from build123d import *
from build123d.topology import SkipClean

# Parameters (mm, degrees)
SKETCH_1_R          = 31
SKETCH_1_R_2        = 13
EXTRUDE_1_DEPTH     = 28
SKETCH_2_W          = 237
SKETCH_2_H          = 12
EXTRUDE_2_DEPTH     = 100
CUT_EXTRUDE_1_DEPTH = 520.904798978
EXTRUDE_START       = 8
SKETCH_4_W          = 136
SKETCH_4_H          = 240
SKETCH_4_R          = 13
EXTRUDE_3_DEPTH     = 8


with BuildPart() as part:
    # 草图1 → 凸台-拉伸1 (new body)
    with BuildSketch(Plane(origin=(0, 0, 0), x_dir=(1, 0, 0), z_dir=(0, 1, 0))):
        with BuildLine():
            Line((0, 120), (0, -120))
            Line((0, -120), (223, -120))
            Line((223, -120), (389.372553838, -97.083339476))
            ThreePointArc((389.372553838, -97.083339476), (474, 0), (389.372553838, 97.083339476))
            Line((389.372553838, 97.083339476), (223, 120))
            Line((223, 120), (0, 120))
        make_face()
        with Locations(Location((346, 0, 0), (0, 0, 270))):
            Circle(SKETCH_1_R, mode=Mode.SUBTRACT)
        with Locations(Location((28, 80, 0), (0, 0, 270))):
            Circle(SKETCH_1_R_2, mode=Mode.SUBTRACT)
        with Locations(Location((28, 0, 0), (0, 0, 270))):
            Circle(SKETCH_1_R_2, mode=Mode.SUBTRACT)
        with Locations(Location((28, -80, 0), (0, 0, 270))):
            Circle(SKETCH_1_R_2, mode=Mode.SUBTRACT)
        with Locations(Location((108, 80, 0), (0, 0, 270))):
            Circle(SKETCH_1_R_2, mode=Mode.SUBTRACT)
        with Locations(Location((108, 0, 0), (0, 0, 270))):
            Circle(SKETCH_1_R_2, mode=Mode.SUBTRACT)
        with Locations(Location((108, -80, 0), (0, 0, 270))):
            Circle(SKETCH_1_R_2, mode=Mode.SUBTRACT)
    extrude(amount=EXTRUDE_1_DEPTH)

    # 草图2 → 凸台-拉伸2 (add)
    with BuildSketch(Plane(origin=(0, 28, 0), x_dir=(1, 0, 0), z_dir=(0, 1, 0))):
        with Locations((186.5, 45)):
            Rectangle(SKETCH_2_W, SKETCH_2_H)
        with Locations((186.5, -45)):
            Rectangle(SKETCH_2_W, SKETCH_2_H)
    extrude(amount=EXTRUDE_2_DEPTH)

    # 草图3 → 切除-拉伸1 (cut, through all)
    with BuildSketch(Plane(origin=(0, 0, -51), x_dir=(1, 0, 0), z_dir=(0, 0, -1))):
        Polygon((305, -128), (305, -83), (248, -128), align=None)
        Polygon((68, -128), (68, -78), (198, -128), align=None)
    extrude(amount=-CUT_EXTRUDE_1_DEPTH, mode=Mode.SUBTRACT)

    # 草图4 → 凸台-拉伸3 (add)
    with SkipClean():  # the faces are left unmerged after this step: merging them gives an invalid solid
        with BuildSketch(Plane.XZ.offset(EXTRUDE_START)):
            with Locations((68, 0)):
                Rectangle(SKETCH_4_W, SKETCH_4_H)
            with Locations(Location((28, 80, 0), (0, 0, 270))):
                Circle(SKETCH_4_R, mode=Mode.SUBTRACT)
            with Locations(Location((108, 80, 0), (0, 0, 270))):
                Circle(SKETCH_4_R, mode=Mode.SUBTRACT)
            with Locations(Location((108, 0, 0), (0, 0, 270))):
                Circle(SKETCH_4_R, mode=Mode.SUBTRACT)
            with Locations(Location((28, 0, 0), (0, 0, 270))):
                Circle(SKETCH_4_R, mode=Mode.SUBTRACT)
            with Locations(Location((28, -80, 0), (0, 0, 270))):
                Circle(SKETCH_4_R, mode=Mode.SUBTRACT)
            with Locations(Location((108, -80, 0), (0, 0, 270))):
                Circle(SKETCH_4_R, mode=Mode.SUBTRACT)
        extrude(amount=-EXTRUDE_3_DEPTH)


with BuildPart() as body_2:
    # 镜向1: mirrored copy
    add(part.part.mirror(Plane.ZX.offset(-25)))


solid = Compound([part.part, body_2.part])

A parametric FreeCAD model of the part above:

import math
import FreeCAD as App
import Part
import Sketcher
from FreeCAD import Vector
Q = App.Units.Quantity

doc = App.newDocument("Part")
params = doc.addObject("Spreadsheet::Sheet", "Params")
for row, (alias, value) in enumerate([
    ("sketch1_diameter", "26 mm"),
    ("sketch1_diameter2", "62 mm"),
    ("sketch1_radius", "98 mm"),
    ("sketch1_width", "223 mm"),
    ("sketch1_height", "240 mm"),
    ("pad1_length", "28 mm"),
    ("sketch2_width", "237 mm"),
    ("sketch2_height", "12 mm"),
    ("pad2_length", "100 mm"),
    ("sketch3_width", "57 mm"),
    ("sketch3_width2", "130 mm"),
    ("sketch3_height", "45 mm"),
    ("sketch3_height2", "50 mm"),
    ("sketch4_diameter", "26 mm"),
    ("sketch4_width", "136 mm"),
    ("sketch4_height", "240 mm"),
    ("pad3_length", "8 mm"),
], start=1):
    params.set(f"A{row}", alias)
    params.set(f"B{row}", "=" + value)
    params.setAlias(f"B{row}", alias)

body = doc.addObject("PartDesign::Body", "Body")

sketch1 = body.newObject("Sketcher::SketchObject", "Sketch")
sketch1.AttachmentSupport = (doc.getObject("XZ_Plane"), [""])
sketch1.MapMode = "FlatFace"
sketch1.addGeometry([
    Part.LineSegment(Vector(0, -120, 0), Vector(0, 120, 0)),
    Part.LineSegment(Vector(0, 120, 0), Vector(223, 120, 0)),
    Part.LineSegment(Vector(223, 120, 0), Vector(389, 97, 0)),
    Part.ArcOfCircle(Part.Circle(Vector(376, 0, 0), Vector(0, 0, 1), 98), math.radians(-82), math.radians(82)),
    Part.LineSegment(Vector(389, -97, 0), Vector(223, -120, 0)),
    Part.LineSegment(Vector(223, -120, 0), Vector(0, -120, 0)),
    Part.Circle(Vector(28, 80, 0), Vector(0, 0, 1), 13),
    Part.Circle(Vector(108, 80, 0), Vector(0, 0, 1), 13),
    Part.Circle(Vector(28, 0, 0), Vector(0, 0, 1), 13),
    Part.Circle(Vector(108, 0, 0), Vector(0, 0, 1), 13),
    Part.Circle(Vector(28, -80, 0), Vector(0, 0, 1), 13),
    Part.Circle(Vector(108, -80, 0), Vector(0, 0, 1), 13),
    Part.Circle(Vector(346, 0, 0), Vector(0, 0, 1), 31),
], False)
sketch1.addConstraint([
    Sketcher.Constraint("Coincident", 0, 2, 1, 1),
    Sketcher.Constraint("Coincident", 1, 2, 2, 1),
    Sketcher.Constraint("Tangent", 2, 2, 3, 2),
    Sketcher.Constraint("Tangent", 3, 1, 4, 1),
    Sketcher.Constraint("Coincident", 4, 2, 5, 1),
    Sketcher.Constraint("Coincident", 5, 2, 0, 1),
    Sketcher.Constraint("Vertical", 0),
    Sketcher.Constraint("Horizontal", 1),
    Sketcher.Constraint("Horizontal", 5),
    Sketcher.Constraint("Equal", 6, 7),
    Sketcher.Constraint("Equal", 7, 8),
    Sketcher.Constraint("Equal", 8, 9),
    Sketcher.Constraint("Equal", 9, 10),
    Sketcher.Constraint("Equal", 10, 11),
    Sketcher.Constraint("Symmetric", 0, 2, 5, 2, -1, 1),
    Sketcher.Constraint("Symmetric", 6, 3, 10, 3, -1),
    Sketcher.Constraint("Symmetric", 7, 3, 11, 3, -1),
    Sketcher.Constraint("Symmetric", 2, 2, 3, 1, -1),
    Sketcher.Constraint("PointOnObject", 8, 3, -1),
    Sketcher.Constraint("PointOnObject", 9, 3, -1),
    Sketcher.Constraint("PointOnObject", 12, 3, -1),
    Sketcher.Constraint("Horizontal", 6, 3, 7, 3),
    Sketcher.Constraint("Vertical", 6, 3, 8, 3),
    Sketcher.Constraint("Vertical", 7, 3, 9, 3),
    Sketcher.Constraint("Diameter", 6, Q("26 mm")),
    Sketcher.Constraint("Diameter", 12, Q("62 mm")),
    Sketcher.Constraint("Radius", 3, Q("98 mm")),
    Sketcher.Constraint("DistanceX", 1, 1, 1, 2, Q("223 mm")),
    Sketcher.Constraint("DistanceY", 0, 1, 0, 2, Q("240 mm")),
    Sketcher.Constraint("DistanceX", -1, 1, 3, 3, Q("376 mm")),
    Sketcher.Constraint("DistanceX", -1, 1, 6, 3, Q("28 mm")),
    Sketcher.Constraint("DistanceY", -1, 1, 6, 3, Q("80 mm")),
    Sketcher.Constraint("DistanceX", -1, 1, 7, 3, Q("108 mm")),
    Sketcher.Constraint("DistanceX", -1, 1, 12, 3, Q("346 mm")),
])
sketch1.setExpression("Constraints[24]", "Params.sketch1_diameter")
sketch1.setExpression("Constraints[25]", "Params.sketch1_diameter2")
sketch1.setExpression("Constraints[26]", "Params.sketch1_radius")
sketch1.setExpression("Constraints[27]", "Params.sketch1_width")
sketch1.setExpression("Constraints[28]", "Params.sketch1_height")
pad1 = body.newObject("PartDesign::Pad", "Pad")
pad1.Profile = sketch1
pad1.setExpression("Length", "Params.pad1_length")
pad1.Reversed = True

sketch2 = body.newObject("Sketcher::SketchObject", "Sketch001")
sketch2.AttachmentSupport = (doc.getObject("XZ_Plane"), [""])
sketch2.MapMode = "FlatFace"
sketch2.AttachmentOffset = App.Placement(Vector(0, 0, -28), App.Rotation())
sketch2.addGeometry([
    Part.LineSegment(Vector(68, -51, 0), Vector(68, -39, 0)),
    Part.LineSegment(Vector(68, -39, 0), Vector(305, -39, 0)),
    Part.LineSegment(Vector(305, -39, 0), Vector(305, -51, 0)),
    Part.LineSegment(Vector(305, -51, 0), Vector(68, -51, 0)),
    Part.LineSegment(Vector(68, 39, 0), Vector(68, 51, 0)),
    Part.LineSegment(Vector(68, 51, 0), Vector(305, 51, 0)),
    Part.LineSegment(Vector(305, 51, 0), Vector(305, 39, 0)),
    Part.LineSegment(Vector(305, 39, 0), Vector(68, 39, 0)),
], False)
sketch2.addConstraint([
    Sketcher.Constraint("Coincident", 0, 2, 1, 1),
    Sketcher.Constraint("Coincident", 1, 2, 2, 1),
    Sketcher.Constraint("Coincident", 2, 2, 3, 1),
    Sketcher.Constraint("Coincident", 3, 2, 0, 1),
    Sketcher.Constraint("Coincident", 4, 2, 5, 1),
    Sketcher.Constraint("Coincident", 5, 2, 6, 1),
    Sketcher.Constraint("Coincident", 6, 2, 7, 1),
    Sketcher.Constraint("Coincident", 7, 2, 4, 1),
    Sketcher.Constraint("Vertical", 0),
    Sketcher.Constraint("Horizontal", 1),
    Sketcher.Constraint("Vertical", 2),
    Sketcher.Constraint("Horizontal", 3),
    Sketcher.Constraint("Vertical", 4),
    Sketcher.Constraint("Horizontal", 5),
    Sketcher.Constraint("Vertical", 6),
    Sketcher.Constraint("Horizontal", 7),
    Sketcher.Constraint("Symmetric", 3, 2, 4, 2, -1),
    Sketcher.Constraint("Symmetric", 1, 2, 6, 2, -1),
    Sketcher.Constraint("DistanceX", 1, 1, 1, 2, Q("237 mm")),
    Sketcher.Constraint("DistanceY", 0, 1, 0, 2, Q("12 mm")),
    Sketcher.Constraint("DistanceX", -1, 1, 0, 2, Q("68 mm")),
    Sketcher.Constraint("DistanceY", 0, 2, -1, 1, Q("39 mm")),
])
sketch2.setExpression("Constraints[18]", "Params.sketch2_width")
sketch2.setExpression("Constraints[19]", "Params.sketch2_height")
pad2 = body.newObject("PartDesign::Pad", "Pad001")
pad2.Profile = sketch2
pad2.setExpression("Length", "Params.pad2_length")
pad2.Reversed = True

sketch3 = body.newObject("Sketcher::SketchObject", "Sketch002")
sketch3.AttachmentSupport = (doc.getObject("XY_Plane"), [""])
sketch3.MapMode = "FlatFace"
sketch3.AttachmentOffset = App.Placement(Vector(0, 0, -51), App.Rotation())
sketch3.addGeometry([
    Part.LineSegment(Vector(305, 128, 0), Vector(305, 83, 0)),
    Part.LineSegment(Vector(305, 83, 0), Vector(248, 128, 0)),
    Part.LineSegment(Vector(248, 128, 0), Vector(305, 128, 0)),
    Part.LineSegment(Vector(68, 78, 0), Vector(68, 128, 0)),
    Part.LineSegment(Vector(68, 128, 0), Vector(198, 128, 0)),
    Part.LineSegment(Vector(198, 128, 0), Vector(68, 78, 0)),
], False)
sketch3.addConstraint([
    Sketcher.Constraint("Coincident", 0, 2, 1, 1),
    Sketcher.Constraint("Coincident", 1, 2, 2, 1),
    Sketcher.Constraint("Coincident", 2, 2, 0, 1),
    Sketcher.Constraint("Coincident", 3, 2, 4, 1),
    Sketcher.Constraint("Coincident", 4, 2, 5, 1),
    Sketcher.Constraint("Coincident", 5, 2, 3, 1),
    Sketcher.Constraint("Vertical", 0),
    Sketcher.Constraint("Horizontal", 2),
    Sketcher.Constraint("Vertical", 3),
    Sketcher.Constraint("Horizontal", 4),
    Sketcher.Constraint("Horizontal", 2, 2, 3, 2),
    Sketcher.Constraint("DistanceX", 2, 1, 2, 2, Q("57 mm")),
    Sketcher.Constraint("DistanceX", 4, 1, 4, 2, Q("130 mm")),
    Sketcher.Constraint("DistanceY", 0, 2, 0, 1, Q("45 mm")),
    Sketcher.Constraint("DistanceY", 3, 1, 3, 2, Q("50 mm")),
    Sketcher.Constraint("DistanceX", -1, 1, 0, 2, Q("305 mm")),
    Sketcher.Constraint("DistanceY", -1, 1, 0, 2, Q("83 mm")),
    Sketcher.Constraint("DistanceX", -1, 1, 3, 2, Q("68 mm")),
])
sketch3.setExpression("Constraints[11]", "Params.sketch3_width")
sketch3.setExpression("Constraints[12]", "Params.sketch3_width2")
sketch3.setExpression("Constraints[13]", "Params.sketch3_height")
sketch3.setExpression("Constraints[14]", "Params.sketch3_height2")
pocket1 = body.newObject("PartDesign::Pocket", "Pocket")
pocket1.Profile = sketch3
pocket1.Type = "ThroughAll"
pocket1.Reversed = True

sketch4 = body.newObject("Sketcher::SketchObject", "Sketch003")
sketch4.AttachmentSupport = (doc.getObject("XZ_Plane"), [""])
sketch4.MapMode = "FlatFace"
sketch4.AttachmentOffset = App.Placement(Vector(0, 0, 8), App.Rotation())
sketch4.addGeometry([
    Part.LineSegment(Vector(0, 120, 0), Vector(0, -120, 0)),
    Part.LineSegment(Vector(0, -120, 0), Vector(136, -120, 0)),
    Part.LineSegment(Vector(136, -120, 0), Vector(136, 120, 0)),
    Part.LineSegment(Vector(136, 120, 0), Vector(0, 120, 0)),
    Part.Circle(Vector(28, -80, 0), Vector(0, 0, 1), 13),
    Part.Circle(Vector(108, -80, 0), Vector(0, 0, 1), 13),
    Part.Circle(Vector(28, 0, 0), Vector(0, 0, 1), 13),
    Part.Circle(Vector(28, 80, 0), Vector(0, 0, 1), 13),
    Part.Circle(Vector(108, 0, 0), Vector(0, 0, 1), 13),
    Part.Circle(Vector(108, 80, 0), Vector(0, 0, 1), 13),
], False)
sketch4.addConstraint([
    Sketcher.Constraint("Coincident", 0, 2, 1, 1),
    Sketcher.Constraint("Coincident", 1, 2, 2, 1),
    Sketcher.Constraint("Coincident", 2, 2, 3, 1),
    Sketcher.Constraint("Coincident", 3, 2, 0, 1),
    Sketcher.Constraint("Vertical", 0),
    Sketcher.Constraint("Horizontal", 1),
    Sketcher.Constraint("Vertical", 2),
    Sketcher.Constraint("Horizontal", 3),
    Sketcher.Constraint("Equal", 4, 5),
    Sketcher.Constraint("Equal", 5, 6),
    Sketcher.Constraint("Equal", 6, 7),
    Sketcher.Constraint("Equal", 7, 8),
    Sketcher.Constraint("Equal", 8, 9),
    Sketcher.Constraint("Symmetric", 0, 2, 3, 2, -1, 1),
    Sketcher.Constraint("Symmetric", 4, 3, 7, 3, -1),
    Sketcher.Constraint("Symmetric", 5, 3, 9, 3, -1),
    Sketcher.Constraint("PointOnObject", 6, 3, -1),
    Sketcher.Constraint("PointOnObject", 8, 3, -1),
    Sketcher.Constraint("Horizontal", 4, 3, 5, 3),
    Sketcher.Constraint("Vertical", 4, 3, 6, 3),
    Sketcher.Constraint("Vertical", 5, 3, 8, 3),
    Sketcher.Constraint("Diameter", 4, Q("26 mm")),
    Sketcher.Constraint("DistanceX", 1, 1, 1, 2, Q("136 mm")),
    Sketcher.Constraint("DistanceY", 0, 2, 0, 1, Q("240 mm")),
    Sketcher.Constraint("DistanceX", -1, 1, 4, 3, Q("28 mm")),
    Sketcher.Constraint("DistanceY", 4, 3, -1, 1, Q("80 mm")),
    Sketcher.Constraint("DistanceX", -1, 1, 5, 3, Q("108 mm")),
])
sketch4.setExpression("Constraints[21]", "Params.sketch4_diameter")
sketch4.setExpression("Constraints[22]", "Params.sketch4_width")
sketch4.setExpression("Constraints[23]", "Params.sketch4_height")
pad3 = body.newObject("PartDesign::Pad", "Pad002")
pad3.Profile = sketch4
pad3.setExpression("Length", "Params.pad3_length")
pad3.Reversed = True
body2 = doc.addObject("PartDesign::Body", "Body001")
doc.recompute()

mirroring = doc.addObject("Part::Mirroring", "Mirroring")
mirroring.Source = body
mirroring.Base = Vector(0, -25, 0)
mirroring.Normal = Vector(0, 1, 0)
body2.BaseFeature = mirroring
doc.recompute()
mirroring.Visibility = False

doc.recompute()
